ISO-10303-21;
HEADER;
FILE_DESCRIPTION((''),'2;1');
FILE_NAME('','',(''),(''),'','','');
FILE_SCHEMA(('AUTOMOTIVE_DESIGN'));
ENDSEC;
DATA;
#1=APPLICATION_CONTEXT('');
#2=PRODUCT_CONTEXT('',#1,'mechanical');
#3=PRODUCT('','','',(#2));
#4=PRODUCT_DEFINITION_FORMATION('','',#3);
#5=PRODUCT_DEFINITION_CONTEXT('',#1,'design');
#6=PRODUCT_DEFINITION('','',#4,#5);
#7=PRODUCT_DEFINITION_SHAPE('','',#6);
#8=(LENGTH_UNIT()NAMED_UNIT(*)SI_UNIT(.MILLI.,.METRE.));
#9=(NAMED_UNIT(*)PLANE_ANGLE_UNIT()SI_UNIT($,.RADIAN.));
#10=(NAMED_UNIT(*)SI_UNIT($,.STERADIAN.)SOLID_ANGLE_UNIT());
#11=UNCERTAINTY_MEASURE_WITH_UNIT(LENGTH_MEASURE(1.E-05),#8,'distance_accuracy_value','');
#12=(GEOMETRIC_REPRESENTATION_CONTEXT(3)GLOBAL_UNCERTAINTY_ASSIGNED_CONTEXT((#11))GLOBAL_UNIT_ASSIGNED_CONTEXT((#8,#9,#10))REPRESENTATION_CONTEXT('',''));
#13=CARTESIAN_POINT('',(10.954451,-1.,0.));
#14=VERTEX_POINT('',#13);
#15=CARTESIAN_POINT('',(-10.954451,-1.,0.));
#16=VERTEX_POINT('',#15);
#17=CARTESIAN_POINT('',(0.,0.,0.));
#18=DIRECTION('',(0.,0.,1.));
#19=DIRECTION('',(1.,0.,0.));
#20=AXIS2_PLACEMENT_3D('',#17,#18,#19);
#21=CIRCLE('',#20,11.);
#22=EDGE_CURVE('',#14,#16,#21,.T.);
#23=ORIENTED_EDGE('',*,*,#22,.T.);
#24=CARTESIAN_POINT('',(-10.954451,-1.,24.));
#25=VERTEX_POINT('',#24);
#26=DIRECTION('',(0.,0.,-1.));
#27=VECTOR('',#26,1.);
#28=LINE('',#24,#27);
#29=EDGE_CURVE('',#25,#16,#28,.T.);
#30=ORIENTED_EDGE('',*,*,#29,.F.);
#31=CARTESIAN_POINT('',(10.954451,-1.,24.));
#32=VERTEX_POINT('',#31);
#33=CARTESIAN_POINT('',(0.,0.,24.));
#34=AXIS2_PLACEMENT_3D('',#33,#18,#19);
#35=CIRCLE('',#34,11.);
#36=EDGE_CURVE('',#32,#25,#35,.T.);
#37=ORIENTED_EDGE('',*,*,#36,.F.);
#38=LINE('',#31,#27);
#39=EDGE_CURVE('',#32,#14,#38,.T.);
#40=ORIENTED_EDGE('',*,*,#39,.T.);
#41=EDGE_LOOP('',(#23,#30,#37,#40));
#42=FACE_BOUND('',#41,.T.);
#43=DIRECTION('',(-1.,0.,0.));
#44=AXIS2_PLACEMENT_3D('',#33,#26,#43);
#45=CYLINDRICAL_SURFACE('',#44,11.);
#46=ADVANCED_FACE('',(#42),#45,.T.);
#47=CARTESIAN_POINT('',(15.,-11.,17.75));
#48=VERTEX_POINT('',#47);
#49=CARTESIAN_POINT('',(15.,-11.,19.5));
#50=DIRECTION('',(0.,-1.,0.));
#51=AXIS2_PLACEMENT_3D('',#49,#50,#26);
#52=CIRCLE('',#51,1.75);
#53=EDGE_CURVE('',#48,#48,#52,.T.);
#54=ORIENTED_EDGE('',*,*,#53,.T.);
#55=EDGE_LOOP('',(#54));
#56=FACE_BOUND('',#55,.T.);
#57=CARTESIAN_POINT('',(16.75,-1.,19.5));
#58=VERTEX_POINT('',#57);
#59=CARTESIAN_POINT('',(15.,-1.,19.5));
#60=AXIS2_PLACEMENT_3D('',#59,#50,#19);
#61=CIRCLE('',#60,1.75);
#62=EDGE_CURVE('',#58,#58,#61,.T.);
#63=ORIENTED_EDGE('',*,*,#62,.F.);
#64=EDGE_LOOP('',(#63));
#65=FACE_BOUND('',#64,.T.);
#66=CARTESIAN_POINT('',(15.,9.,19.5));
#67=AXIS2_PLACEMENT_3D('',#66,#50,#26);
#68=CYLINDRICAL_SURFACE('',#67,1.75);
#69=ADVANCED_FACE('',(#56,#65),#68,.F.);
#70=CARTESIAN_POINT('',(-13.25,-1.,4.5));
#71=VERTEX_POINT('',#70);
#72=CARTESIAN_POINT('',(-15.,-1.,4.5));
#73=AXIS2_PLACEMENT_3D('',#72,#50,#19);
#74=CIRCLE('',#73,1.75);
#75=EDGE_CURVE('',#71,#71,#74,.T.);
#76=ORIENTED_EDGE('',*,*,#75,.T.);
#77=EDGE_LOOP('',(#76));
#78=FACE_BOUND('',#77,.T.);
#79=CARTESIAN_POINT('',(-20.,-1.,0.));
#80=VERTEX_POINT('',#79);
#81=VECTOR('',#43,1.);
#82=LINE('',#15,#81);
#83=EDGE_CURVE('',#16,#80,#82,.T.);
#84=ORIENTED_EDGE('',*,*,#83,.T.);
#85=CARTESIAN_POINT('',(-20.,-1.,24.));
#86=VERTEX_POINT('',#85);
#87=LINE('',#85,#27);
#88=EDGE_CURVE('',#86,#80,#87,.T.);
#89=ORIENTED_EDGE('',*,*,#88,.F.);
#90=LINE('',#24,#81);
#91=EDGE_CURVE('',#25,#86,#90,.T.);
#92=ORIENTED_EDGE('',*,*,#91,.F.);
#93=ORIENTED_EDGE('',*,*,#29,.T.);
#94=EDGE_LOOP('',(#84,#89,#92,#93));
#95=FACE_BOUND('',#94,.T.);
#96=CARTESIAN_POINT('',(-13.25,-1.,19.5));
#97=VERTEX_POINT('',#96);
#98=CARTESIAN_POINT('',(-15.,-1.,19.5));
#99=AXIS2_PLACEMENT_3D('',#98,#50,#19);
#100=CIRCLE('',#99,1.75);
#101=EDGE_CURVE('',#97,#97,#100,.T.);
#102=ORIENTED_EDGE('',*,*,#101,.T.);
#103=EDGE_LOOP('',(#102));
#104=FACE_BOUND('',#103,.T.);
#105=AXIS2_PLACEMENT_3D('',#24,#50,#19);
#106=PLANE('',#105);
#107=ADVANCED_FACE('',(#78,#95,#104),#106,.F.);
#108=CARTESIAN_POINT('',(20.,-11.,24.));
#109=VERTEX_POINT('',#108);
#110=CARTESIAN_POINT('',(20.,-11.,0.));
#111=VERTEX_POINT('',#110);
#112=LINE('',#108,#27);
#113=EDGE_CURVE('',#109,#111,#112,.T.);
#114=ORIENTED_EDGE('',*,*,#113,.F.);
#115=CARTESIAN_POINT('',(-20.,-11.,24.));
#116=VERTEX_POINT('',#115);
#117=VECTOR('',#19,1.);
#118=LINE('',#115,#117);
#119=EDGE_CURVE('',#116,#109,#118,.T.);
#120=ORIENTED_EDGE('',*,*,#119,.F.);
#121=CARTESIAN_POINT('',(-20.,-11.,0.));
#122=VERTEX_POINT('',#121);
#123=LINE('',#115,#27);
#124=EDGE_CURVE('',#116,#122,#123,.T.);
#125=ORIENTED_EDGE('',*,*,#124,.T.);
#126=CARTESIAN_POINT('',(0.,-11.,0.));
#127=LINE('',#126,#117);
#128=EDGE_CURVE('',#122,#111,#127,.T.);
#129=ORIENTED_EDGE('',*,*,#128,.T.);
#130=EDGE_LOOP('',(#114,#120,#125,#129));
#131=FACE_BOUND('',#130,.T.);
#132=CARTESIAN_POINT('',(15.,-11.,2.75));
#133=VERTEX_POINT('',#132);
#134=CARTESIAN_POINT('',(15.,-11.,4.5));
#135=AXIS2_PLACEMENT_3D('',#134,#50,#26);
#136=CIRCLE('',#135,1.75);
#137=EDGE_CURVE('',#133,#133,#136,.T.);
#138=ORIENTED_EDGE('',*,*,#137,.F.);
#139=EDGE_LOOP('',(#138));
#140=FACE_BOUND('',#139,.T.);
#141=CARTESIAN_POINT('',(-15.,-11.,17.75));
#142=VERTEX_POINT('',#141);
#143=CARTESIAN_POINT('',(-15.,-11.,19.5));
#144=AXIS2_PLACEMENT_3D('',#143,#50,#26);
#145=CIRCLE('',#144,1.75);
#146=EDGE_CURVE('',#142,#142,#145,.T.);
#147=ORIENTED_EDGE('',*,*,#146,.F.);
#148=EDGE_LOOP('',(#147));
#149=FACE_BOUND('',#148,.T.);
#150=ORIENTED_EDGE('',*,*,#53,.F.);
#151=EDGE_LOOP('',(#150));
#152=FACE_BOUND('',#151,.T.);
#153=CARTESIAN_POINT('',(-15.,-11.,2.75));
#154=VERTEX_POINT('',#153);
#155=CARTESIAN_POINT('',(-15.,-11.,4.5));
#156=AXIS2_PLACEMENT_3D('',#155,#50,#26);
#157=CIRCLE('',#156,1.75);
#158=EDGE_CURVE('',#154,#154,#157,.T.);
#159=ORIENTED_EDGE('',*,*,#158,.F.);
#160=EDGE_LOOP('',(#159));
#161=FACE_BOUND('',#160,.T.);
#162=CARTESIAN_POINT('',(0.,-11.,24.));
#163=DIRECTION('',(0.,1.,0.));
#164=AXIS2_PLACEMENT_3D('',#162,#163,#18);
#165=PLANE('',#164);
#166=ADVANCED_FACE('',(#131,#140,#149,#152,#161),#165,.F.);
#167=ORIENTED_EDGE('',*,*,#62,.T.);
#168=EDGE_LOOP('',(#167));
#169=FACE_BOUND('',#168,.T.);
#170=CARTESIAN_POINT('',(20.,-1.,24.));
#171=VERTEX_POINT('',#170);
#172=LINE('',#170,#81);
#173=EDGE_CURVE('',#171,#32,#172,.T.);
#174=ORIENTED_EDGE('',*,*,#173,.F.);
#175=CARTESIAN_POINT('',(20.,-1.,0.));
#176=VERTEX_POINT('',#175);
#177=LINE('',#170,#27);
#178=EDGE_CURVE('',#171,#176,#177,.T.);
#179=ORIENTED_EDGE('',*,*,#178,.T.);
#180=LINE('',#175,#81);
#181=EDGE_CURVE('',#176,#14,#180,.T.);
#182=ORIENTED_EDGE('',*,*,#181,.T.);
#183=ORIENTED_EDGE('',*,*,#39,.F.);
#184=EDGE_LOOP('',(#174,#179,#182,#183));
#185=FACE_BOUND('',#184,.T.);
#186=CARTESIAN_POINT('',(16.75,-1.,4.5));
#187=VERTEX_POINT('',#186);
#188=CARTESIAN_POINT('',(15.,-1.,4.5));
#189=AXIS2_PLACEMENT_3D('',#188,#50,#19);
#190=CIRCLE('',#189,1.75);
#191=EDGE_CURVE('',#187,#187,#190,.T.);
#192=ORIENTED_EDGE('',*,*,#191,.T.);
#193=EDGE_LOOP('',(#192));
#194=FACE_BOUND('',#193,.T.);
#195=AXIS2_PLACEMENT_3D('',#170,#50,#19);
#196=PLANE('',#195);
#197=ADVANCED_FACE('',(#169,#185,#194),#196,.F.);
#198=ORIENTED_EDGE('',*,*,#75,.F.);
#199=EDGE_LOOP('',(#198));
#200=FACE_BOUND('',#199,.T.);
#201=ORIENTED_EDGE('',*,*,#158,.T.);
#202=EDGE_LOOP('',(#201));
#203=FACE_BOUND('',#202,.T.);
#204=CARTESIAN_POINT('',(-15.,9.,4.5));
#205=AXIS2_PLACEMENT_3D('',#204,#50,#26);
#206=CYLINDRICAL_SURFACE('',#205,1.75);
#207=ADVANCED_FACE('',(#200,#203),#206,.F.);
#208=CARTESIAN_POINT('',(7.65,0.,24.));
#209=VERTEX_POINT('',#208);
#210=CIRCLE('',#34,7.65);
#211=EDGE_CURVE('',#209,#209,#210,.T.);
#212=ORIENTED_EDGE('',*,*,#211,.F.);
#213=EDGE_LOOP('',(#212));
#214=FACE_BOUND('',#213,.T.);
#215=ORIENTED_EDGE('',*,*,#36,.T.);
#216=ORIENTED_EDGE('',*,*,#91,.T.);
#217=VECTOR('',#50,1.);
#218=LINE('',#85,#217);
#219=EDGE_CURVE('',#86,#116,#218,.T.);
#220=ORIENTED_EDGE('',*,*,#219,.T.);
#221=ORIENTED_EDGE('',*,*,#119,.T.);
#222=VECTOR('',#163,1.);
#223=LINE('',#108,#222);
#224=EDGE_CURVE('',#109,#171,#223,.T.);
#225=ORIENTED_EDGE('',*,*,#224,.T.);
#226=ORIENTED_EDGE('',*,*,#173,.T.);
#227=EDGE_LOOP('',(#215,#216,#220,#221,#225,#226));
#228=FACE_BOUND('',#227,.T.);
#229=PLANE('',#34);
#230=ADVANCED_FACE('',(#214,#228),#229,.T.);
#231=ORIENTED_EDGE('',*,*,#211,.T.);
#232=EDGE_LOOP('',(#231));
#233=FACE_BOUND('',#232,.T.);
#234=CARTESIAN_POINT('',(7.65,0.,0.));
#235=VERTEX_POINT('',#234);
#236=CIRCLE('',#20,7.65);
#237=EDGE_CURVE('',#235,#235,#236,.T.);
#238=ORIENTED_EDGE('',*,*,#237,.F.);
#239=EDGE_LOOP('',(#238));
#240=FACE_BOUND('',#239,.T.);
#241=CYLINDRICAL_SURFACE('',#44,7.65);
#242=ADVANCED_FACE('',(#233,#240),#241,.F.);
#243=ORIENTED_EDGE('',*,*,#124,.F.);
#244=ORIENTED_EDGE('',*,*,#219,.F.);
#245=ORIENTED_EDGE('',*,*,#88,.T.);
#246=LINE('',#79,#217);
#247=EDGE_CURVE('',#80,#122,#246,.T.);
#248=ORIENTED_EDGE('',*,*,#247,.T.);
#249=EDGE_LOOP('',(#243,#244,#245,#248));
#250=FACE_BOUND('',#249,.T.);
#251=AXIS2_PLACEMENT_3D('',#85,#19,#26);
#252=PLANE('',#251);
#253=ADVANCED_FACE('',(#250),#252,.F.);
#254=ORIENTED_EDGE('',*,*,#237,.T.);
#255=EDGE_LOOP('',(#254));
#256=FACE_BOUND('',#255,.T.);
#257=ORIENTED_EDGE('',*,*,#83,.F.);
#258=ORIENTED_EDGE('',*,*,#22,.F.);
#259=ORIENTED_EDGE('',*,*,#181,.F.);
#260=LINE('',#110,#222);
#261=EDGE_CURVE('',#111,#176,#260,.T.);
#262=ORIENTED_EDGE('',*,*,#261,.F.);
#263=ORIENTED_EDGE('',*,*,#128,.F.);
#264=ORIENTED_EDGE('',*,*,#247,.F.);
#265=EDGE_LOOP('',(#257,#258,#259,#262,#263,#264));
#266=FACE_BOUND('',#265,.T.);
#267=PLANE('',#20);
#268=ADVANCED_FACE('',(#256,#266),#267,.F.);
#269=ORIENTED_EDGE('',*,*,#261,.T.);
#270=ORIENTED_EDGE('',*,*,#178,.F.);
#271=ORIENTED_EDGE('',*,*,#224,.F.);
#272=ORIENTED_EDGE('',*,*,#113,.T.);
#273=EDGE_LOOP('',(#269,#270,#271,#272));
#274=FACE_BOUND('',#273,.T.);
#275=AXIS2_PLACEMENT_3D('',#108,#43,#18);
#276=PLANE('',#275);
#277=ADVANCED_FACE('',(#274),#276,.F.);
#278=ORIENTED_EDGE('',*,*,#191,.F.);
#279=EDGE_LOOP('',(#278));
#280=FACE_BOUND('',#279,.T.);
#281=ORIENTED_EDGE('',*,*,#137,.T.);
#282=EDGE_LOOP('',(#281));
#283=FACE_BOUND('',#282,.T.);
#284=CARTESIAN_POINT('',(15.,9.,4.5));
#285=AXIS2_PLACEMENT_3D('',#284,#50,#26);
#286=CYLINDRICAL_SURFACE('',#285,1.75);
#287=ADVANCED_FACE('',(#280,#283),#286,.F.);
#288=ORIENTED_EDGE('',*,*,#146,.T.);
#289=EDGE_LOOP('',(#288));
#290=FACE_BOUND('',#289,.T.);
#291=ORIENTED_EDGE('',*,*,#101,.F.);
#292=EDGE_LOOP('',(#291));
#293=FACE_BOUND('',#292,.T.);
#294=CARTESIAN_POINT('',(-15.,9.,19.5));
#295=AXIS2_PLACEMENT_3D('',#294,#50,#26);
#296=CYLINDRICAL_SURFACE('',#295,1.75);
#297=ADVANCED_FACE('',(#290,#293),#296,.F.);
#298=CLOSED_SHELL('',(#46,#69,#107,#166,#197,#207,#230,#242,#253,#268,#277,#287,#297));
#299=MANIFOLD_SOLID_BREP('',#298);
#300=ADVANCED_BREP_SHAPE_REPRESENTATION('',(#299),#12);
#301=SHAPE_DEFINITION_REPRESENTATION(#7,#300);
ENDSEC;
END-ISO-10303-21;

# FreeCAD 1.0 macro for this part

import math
import FreeCAD as App
import Part
import Sketcher

doc = App.newDocument("Part")
body = doc.addObject("PartDesign::Body", "Body")

# Sketch on XY plane
sketch1 = body.newObject("Sketcher::SketchObject", "Sketch")
sketch1.AttachmentSupport = (doc.getObject("XY_Plane"), [""])
sketch1.MapMode = "FlatFace"
sketch1.addGeometry([
    Part.LineSegment(App.Vector(-11, -1, 0), App.Vector(-20, -1, 0)),  # 0
    Part.LineSegment(App.Vector(-20, -1, 0), App.Vector(-20, -11, 0)),  # 1
    Part.LineSegment(App.Vector(-20, -11, 0), App.Vector(20, -11, 0)),  # 2
    Part.LineSegment(App.Vector(20, -11, 0), App.Vector(20, -1, 0)),  # 3
    Part.LineSegment(App.Vector(20, -1, 0), App.Vector(11, -1, 0)),  # 4
    Part.ArcOfCircle(Part.Circle(App.Vector(0, 0, 0), App.Vector(0, 0, 1), 11), math.radians(-5), math.radians(185)),  # 5
    Part.Circle(App.Vector(0, 0, 0), App.Vector(0, 0, 1), 8),  # 6
], False)
sketch1.addConstraint([
    Sketcher.Constraint("Coincident", 0, 2, 1, 1),
    Sketcher.Constraint("Coincident", 1, 2, 2, 1),
    Sketcher.Constraint("Coincident", 2, 2, 3, 1),
    Sketcher.Constraint("Coincident", 3, 2, 4, 1),
    Sketcher.Constraint("Coincident", 4, 2, 5, 1),
    Sketcher.Constraint("Coincident", 5, 2, 0, 1),
    Sketcher.Constraint("Horizontal", 0),
    Sketcher.Constraint("Vertical", 1),
    Sketcher.Constraint("Horizontal", 2),
    Sketcher.Constraint("Vertical", 3),
    Sketcher.Constraint("Horizontal", 4),
    Sketcher.Constraint("Coincident", 5, 3, -1, 1),
    Sketcher.Constraint("Coincident", 6, 3, -1, 1),
    Sketcher.Constraint("Symmetric", 0, 2, 3, 2, -2),
    Sketcher.Constraint("Radius", 5, 11.0),
    Sketcher.Constraint("Diameter", 6, 15.3),
    Sketcher.Constraint("DistanceX", 2, 1, 2, 2, 40.0),
    Sketcher.Constraint("DistanceY", 1, 2, 1, 1, 10.0),
    Sketcher.Constraint("DistanceY", 0, 2, -1, 1, 1.0),
])
pad1 = body.newObject("PartDesign::Pad", "Pad")
pad1.Profile = sketch1
pad1.Length = 24

# Sketch on XZ plane
sketch2 = body.newObject("Sketcher::SketchObject", "Sketch001")
sketch2.AttachmentSupport = (doc.getObject("XZ_Plane"), [""])
sketch2.MapMode = "FlatFace"
sketch2.AttachmentOffset = App.Placement(App.Vector(0, 0, 11), App.Rotation())
sketch2.addGeometry([
    Part.Circle(App.Vector(15, 19.5, 0), App.Vector(0, 0, 1), 1.8),
    Part.Circle(App.Vector(15, 4.5, 0), App.Vector(0, 0, 1), 1.8),
    Part.Circle(App.Vector(-15, 4.5, 0), App.Vector(0, 0, 1), 1.8),
    Part.Circle(App.Vector(-15, 19.5, 0), App.Vector(0, 0, 1), 1.8),
], False)
sketch2.addConstraint([
    Sketcher.Constraint("Equal", 0, 1),
    Sketcher.Constraint("Equal", 1, 2),
    Sketcher.Constraint("Equal", 2, 3),
    Sketcher.Constraint("Symmetric", 1, 3, 2, 3, -2),
    Sketcher.Constraint("Symmetric", 0, 3, 3, 3, -2),
    Sketcher.Constraint("Vertical", 0, 3, 1, 3),
    Sketcher.Constraint("Diameter", 0, 3.5),
    Sketcher.Constraint("DistanceX", -1, 1, 0, 3, 15.0),
    Sketcher.Constraint("DistanceY", 1, 3, 0, 3, 15.0),
    Sketcher.Constraint("DistanceY", -1, 1, 0, 3, 19.5),
])
pocket1 = body.newObject("PartDesign::Pocket", "Pocket")
pocket1.Profile = sketch2
pocket1.Length = 20

doc.recompute()
